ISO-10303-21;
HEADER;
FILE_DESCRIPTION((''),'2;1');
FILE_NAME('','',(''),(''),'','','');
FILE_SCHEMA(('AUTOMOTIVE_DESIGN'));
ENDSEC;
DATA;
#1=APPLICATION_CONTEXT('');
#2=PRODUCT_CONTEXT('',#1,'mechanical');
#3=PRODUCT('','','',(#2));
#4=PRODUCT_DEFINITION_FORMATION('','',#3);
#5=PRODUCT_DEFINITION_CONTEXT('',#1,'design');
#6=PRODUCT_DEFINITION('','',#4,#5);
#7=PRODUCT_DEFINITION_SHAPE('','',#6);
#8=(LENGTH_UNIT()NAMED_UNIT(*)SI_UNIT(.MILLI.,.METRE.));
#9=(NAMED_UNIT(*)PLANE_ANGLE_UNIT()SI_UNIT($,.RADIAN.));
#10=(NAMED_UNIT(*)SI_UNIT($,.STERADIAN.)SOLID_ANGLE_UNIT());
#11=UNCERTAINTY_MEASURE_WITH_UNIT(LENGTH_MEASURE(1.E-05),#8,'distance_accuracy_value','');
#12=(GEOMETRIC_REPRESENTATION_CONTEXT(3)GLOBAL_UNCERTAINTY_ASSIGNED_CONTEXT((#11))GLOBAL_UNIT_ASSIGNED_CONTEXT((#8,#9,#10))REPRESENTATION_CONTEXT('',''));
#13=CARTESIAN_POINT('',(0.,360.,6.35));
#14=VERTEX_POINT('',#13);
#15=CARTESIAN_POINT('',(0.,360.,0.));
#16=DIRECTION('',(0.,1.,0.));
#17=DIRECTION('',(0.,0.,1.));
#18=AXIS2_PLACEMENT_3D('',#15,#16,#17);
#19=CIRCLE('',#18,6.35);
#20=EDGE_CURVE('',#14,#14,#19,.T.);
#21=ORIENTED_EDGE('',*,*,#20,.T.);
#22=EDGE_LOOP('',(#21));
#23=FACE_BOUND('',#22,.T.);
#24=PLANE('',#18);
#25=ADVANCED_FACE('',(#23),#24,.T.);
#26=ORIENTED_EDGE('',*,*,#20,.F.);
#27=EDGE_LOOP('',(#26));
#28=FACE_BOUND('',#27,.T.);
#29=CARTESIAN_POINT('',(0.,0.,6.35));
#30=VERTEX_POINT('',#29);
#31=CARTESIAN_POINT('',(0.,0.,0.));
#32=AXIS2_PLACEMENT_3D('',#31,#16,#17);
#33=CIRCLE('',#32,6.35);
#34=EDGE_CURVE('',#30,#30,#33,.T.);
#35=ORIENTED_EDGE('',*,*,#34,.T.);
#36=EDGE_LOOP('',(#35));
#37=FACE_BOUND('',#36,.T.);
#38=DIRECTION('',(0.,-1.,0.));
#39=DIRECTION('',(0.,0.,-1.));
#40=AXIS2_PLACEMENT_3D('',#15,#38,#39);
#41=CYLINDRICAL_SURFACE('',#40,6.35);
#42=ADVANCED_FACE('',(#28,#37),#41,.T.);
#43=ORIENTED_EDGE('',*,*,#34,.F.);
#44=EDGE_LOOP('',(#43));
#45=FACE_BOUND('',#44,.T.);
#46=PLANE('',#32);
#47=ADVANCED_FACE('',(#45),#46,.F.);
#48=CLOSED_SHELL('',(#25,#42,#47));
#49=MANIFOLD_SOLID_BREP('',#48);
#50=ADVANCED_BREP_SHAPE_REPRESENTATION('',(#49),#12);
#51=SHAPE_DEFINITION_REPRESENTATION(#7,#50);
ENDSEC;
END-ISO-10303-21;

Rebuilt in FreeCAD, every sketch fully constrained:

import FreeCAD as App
import Part
import Sketcher
from FreeCAD import Vector
Q = App.Units.Quantity

doc = App.newDocument("Part")
params = doc.addObject("Spreadsheet::Sheet", "Params")
for row, (alias, value) in enumerate([
    ("sketch1_diameter", "12.7 mm"),
    ("sketch2_height", "360 mm"),
], start=1):
    params.set(f"A{row}", alias)
    params.set(f"B{row}", "=" + value)
    params.setAlias(f"B{row}", alias)

body = doc.addObject("PartDesign::Body", "Body")

# Sketch on XZ plane
sketch1 = body.newObject("Sketcher::SketchObject", "Sketch")
sketch1.AttachmentSupport = (doc.getObject("XZ_Plane"), [""])
sketch1.MapMode = "FlatFace"
sketch1.addGeometry(Part.Circle(Vector(0, 0, 0), Vector(0, 0, 1), 6.35), False)
sketch1.addConstraint([
    Sketcher.Constraint("Coincident", 0, 3, -1, 1),
    Sketcher.Constraint("Diameter", 0, Q("12.7 mm")),
])
sketch1.setExpression("Constraints[1]", "Params.sketch1_diameter")

# Sketch on XY plane
sketch2 = body.newObject("Sketcher::SketchObject", "Sketch001")
sketch2.AttachmentSupport = (doc.getObject("XY_Plane"), [""])
sketch2.MapMode = "FlatFace"
sketch2.addGeometry(Part.LineSegment(Vector(0, 0, 0), Vector(0, 360, 0)), False)
sketch2.addConstraint([
    Sketcher.Constraint("Vertical", 0),
    Sketcher.Constraint("Coincident", 0, 1, -1, 1),
    Sketcher.Constraint("DistanceY", 0, 1, 0, 2, Q("360 mm")),
])
sketch2.setExpression("Constraints[2]", "Params.sketch2_height")
doc.recompute()

additivepipe = body.newObject("PartDesign::AdditivePipe", "AdditivePipe")
additivepipe.Profile = sketch1
additivepipe.Spine = (sketch2, ["Edge1"])

doc.recompute()
